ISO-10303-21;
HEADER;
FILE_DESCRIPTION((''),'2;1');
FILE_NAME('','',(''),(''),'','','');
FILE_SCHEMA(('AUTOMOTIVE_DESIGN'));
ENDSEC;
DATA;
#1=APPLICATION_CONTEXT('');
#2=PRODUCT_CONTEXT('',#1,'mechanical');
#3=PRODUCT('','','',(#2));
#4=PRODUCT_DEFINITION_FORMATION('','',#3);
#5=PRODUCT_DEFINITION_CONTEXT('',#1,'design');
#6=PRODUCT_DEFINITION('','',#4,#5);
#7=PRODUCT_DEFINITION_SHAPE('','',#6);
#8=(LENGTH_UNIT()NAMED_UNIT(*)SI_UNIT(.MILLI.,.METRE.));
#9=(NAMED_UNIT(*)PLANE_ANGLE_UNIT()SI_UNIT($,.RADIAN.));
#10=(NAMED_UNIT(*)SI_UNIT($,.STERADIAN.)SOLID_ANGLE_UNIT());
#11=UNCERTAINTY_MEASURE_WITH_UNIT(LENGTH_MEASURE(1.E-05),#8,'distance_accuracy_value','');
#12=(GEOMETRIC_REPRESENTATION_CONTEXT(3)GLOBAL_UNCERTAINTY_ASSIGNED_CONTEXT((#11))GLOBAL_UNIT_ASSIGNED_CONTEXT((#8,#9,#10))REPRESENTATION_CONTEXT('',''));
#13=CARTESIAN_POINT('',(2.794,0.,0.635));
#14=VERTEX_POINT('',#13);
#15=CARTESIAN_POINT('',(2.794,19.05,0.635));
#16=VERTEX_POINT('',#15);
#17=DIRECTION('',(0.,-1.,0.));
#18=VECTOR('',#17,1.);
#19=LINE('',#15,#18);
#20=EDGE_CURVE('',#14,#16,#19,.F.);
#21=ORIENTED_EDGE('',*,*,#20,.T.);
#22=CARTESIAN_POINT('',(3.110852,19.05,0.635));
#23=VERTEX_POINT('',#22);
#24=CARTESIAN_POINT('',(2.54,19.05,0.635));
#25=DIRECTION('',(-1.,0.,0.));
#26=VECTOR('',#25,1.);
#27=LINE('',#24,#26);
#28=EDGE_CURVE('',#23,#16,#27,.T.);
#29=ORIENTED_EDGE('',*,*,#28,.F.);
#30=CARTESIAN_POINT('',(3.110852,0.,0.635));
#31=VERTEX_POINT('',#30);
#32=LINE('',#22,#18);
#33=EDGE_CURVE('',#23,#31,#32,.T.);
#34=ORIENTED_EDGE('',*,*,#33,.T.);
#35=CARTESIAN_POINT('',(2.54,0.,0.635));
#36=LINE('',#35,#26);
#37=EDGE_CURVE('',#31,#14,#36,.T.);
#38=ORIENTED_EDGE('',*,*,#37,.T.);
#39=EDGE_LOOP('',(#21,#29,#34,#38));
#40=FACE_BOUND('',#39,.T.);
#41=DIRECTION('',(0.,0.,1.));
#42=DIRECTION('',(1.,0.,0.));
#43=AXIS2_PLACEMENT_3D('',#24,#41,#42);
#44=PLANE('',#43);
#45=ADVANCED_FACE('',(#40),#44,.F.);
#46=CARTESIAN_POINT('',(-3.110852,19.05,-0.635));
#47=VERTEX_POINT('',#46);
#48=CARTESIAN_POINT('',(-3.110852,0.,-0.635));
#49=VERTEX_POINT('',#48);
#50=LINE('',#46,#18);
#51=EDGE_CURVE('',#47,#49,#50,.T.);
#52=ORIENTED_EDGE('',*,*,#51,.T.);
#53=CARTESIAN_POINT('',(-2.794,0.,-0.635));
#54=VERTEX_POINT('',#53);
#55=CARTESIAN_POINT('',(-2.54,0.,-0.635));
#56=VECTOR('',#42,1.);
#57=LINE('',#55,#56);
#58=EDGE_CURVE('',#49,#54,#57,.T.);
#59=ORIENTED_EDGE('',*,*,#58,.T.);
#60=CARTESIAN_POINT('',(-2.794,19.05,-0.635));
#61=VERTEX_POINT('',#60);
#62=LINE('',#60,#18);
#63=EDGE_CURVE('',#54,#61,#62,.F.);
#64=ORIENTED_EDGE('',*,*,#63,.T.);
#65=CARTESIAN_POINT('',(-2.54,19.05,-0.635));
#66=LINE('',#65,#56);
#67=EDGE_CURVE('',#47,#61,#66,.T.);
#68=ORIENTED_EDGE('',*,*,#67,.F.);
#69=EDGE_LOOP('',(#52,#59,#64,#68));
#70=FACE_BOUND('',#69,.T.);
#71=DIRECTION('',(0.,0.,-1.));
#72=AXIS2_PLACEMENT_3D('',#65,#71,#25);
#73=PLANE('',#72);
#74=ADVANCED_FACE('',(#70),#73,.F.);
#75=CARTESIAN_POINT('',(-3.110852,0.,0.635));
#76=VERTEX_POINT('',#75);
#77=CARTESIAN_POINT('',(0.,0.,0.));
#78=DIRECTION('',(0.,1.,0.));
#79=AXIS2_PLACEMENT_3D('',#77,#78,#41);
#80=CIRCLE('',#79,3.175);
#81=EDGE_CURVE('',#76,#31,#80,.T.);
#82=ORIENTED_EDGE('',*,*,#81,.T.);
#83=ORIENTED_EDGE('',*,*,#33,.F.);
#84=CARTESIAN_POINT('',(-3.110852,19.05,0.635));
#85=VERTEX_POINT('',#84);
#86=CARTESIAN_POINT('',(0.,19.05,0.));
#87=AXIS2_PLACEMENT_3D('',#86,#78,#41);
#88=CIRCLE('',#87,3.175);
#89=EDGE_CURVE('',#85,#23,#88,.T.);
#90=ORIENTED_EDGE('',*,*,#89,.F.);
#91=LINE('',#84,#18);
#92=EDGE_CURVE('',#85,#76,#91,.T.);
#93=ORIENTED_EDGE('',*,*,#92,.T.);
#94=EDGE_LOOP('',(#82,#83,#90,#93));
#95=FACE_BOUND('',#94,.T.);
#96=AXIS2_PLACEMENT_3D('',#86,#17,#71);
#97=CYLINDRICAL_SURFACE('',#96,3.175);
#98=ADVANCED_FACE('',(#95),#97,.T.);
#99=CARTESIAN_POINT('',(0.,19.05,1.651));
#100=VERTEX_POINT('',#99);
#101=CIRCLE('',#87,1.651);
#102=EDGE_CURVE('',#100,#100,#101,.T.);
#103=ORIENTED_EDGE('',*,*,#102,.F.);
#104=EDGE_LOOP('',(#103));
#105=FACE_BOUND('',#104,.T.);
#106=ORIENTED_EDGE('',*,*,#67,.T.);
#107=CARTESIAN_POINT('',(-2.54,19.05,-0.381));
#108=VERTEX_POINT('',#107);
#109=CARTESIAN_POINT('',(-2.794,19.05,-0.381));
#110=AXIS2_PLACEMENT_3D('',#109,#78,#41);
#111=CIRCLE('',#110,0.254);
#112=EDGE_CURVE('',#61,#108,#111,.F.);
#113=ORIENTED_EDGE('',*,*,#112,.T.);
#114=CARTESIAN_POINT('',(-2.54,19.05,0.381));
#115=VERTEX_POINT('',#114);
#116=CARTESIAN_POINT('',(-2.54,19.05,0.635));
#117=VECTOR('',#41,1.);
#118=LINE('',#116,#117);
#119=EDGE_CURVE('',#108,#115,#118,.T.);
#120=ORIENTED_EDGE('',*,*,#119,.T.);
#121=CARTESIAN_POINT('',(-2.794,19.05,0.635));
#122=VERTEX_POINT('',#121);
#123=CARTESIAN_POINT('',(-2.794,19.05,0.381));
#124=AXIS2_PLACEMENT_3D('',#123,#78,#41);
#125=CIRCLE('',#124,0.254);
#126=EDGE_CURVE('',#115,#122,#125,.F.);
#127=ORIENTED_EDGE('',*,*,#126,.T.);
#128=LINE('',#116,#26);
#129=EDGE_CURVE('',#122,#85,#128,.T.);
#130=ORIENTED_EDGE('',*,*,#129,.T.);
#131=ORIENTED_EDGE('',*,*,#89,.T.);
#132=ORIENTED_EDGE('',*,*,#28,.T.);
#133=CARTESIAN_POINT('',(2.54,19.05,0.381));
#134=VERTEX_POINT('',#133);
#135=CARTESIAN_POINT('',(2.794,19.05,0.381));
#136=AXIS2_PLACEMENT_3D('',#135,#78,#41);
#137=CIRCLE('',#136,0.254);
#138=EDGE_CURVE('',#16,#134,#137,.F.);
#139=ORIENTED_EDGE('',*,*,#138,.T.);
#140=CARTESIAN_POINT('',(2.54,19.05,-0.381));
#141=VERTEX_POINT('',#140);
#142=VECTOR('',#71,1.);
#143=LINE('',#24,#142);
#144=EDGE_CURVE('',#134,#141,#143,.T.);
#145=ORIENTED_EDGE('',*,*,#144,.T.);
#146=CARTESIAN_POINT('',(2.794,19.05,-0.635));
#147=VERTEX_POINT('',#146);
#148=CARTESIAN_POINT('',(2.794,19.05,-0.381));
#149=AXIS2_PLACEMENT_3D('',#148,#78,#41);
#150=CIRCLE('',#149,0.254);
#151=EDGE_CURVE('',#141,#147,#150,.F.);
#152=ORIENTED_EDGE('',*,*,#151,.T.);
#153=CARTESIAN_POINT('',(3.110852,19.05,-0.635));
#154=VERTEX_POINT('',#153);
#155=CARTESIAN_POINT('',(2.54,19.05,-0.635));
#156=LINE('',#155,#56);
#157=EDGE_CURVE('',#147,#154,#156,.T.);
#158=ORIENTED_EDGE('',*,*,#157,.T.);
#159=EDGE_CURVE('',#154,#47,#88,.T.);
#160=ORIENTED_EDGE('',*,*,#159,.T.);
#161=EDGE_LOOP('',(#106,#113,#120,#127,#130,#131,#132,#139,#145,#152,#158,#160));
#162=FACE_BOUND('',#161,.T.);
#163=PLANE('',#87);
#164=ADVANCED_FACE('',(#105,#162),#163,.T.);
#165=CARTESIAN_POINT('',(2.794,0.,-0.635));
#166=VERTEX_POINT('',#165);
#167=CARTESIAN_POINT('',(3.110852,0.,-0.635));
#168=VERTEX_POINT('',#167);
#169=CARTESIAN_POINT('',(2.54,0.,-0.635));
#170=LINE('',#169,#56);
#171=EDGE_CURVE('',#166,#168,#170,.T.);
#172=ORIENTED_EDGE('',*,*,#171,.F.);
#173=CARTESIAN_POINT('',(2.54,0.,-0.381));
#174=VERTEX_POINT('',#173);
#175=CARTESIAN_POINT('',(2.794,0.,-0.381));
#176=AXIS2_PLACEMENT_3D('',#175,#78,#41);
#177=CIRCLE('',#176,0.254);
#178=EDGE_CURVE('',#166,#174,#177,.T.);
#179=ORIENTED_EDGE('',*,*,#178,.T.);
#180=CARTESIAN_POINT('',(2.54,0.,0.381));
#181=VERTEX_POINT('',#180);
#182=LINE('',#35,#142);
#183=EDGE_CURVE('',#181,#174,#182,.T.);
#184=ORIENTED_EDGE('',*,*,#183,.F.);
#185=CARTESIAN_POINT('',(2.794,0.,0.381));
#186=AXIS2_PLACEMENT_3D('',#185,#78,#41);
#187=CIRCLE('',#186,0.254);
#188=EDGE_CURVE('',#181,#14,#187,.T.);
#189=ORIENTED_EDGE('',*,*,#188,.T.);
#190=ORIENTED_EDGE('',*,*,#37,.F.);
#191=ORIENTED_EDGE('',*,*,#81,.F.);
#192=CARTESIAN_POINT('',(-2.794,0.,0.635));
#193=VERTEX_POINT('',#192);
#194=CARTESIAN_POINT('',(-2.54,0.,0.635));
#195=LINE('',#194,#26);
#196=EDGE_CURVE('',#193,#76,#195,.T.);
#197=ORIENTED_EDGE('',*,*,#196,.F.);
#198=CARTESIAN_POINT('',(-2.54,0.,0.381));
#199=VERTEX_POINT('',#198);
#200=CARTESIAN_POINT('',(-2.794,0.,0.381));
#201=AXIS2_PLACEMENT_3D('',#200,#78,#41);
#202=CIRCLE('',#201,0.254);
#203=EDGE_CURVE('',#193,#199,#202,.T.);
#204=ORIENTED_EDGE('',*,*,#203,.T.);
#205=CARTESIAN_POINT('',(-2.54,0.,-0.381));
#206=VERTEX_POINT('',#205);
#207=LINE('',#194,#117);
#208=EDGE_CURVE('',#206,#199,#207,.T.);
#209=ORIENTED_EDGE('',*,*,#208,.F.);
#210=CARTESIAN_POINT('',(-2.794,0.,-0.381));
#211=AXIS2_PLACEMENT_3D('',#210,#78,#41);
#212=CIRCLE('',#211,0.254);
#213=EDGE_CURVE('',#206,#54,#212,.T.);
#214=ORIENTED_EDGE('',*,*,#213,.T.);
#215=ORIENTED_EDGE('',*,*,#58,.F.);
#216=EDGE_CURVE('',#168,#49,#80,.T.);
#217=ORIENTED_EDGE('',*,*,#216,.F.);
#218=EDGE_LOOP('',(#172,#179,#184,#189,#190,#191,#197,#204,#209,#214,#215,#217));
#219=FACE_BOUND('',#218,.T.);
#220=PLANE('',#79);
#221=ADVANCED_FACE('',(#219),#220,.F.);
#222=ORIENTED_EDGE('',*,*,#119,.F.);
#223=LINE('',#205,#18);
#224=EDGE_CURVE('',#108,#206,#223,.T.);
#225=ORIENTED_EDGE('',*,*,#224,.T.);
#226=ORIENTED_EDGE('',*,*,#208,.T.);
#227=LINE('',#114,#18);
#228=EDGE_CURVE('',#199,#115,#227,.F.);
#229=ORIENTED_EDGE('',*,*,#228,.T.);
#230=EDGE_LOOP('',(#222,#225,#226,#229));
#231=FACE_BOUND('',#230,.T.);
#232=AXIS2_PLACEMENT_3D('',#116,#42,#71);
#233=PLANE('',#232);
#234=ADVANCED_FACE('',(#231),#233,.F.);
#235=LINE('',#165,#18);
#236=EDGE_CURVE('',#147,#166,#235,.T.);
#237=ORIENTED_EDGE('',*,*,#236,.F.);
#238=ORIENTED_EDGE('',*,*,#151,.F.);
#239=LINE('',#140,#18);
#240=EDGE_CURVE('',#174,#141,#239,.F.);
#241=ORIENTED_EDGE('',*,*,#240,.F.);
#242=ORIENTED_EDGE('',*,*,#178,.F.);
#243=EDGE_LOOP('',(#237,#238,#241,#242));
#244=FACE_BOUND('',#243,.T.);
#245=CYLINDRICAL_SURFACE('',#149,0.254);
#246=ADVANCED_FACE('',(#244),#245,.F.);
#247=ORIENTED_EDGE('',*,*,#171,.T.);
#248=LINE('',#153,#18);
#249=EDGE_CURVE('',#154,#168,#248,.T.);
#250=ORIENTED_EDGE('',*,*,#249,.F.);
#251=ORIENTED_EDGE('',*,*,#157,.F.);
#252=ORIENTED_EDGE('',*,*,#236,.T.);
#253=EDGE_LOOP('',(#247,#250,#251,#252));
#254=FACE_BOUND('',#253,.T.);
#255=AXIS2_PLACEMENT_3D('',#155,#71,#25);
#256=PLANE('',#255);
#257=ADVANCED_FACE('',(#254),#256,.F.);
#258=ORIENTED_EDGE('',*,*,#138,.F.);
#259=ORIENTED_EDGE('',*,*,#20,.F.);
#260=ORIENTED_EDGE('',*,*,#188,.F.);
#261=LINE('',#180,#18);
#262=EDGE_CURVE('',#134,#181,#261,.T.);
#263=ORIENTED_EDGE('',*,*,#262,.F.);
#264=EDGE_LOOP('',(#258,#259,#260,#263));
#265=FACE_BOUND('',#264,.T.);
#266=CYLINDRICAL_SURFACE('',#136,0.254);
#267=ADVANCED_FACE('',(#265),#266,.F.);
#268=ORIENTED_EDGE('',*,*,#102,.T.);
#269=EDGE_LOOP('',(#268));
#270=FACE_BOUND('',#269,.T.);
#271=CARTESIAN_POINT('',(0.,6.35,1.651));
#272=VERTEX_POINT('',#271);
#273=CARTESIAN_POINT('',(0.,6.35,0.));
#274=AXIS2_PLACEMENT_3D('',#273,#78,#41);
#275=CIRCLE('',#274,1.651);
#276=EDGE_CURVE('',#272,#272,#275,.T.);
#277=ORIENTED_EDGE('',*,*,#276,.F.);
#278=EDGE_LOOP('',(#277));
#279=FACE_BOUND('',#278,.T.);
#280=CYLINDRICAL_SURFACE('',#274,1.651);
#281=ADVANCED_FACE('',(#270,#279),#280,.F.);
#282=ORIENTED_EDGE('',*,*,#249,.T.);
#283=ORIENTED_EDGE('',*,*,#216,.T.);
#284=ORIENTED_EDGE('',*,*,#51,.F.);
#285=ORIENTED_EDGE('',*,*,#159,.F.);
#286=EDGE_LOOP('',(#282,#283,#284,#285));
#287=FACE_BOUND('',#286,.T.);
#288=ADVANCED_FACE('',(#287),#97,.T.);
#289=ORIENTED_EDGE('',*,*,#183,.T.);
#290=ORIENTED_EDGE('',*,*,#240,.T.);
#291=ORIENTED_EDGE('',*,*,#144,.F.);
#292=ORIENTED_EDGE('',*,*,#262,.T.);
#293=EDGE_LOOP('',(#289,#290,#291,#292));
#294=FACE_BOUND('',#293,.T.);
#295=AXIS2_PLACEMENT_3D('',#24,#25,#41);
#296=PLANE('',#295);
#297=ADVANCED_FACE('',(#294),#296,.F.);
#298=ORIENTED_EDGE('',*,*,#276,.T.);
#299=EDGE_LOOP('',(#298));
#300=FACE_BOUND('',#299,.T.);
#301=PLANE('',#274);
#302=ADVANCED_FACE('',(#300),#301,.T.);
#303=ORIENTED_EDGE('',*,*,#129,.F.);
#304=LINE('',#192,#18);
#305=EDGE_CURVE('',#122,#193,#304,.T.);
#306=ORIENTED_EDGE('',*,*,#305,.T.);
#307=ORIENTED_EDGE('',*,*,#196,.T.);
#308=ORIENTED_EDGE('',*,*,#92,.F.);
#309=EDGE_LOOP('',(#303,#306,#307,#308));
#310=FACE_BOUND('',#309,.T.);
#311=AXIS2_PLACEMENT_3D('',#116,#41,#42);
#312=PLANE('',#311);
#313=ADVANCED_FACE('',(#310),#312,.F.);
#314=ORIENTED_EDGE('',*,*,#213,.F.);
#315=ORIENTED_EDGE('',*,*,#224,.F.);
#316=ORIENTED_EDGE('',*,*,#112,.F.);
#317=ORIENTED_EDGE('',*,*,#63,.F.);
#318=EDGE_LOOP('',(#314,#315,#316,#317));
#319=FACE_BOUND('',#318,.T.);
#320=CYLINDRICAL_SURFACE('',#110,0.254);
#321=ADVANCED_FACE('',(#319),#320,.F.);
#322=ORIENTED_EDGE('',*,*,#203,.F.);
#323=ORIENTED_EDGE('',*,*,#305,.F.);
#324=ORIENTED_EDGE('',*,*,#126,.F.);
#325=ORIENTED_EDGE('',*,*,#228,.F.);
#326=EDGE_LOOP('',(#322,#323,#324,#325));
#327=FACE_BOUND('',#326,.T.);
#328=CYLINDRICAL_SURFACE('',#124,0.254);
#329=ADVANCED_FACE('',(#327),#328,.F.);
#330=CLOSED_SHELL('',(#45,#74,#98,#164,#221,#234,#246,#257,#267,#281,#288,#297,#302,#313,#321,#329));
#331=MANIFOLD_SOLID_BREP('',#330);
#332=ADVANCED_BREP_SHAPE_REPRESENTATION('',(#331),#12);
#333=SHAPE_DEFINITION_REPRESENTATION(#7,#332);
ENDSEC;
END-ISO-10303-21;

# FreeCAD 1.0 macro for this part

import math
import FreeCAD as App
import Part
import Sketcher
from FreeCAD import Vector
Q = App.Units.Quantity


def edges_at(feature, points):
    """Names of the edges that pass closest to the given points."""
    edges = feature.Shape.Edges
    near = lambda p: min(range(len(edges)), key=lambda i: edges[i].distToShape(Part.Vertex(*p))[0])
    return sorted({f"Edge{near(p) + 1}" for p in points})

doc = App.newDocument("Part")
body = doc.addObject("PartDesign::Body", "Body")

sketch1 = body.newObject("Sketcher::SketchObject", "Sketch")
sketch1.AttachmentSupport = (doc.getObject("XZ_Plane"), [""])
sketch1.MapMode = "FlatFace"
sketch1.addGeometry([
    Part.LineSegment(Vector(3.1, 0.6, 0), Vector(2.5, 0.6, 0)),
    Part.LineSegment(Vector(2.5, 0.6, 0), Vector(2.5, -0.6, 0)),
    Part.LineSegment(Vector(2.5, -0.6, 0), Vector(3.1, -0.6, 0)),
    Part.ArcOfCircle(Part.Circle(Vector(0, 0, 0), Vector(0, 0, 1), 3.2), math.radians(-168), math.radians(-12)),
    Part.LineSegment(Vector(-3.1, -0.6, 0), Vector(-2.5, -0.6, 0)),
    Part.LineSegment(Vector(-2.5, -0.6, 0), Vector(-2.5, 0.6, 0)),
    Part.LineSegment(Vector(-2.5, 0.6, 0), Vector(-3.1, 0.6, 0)),
    Part.ArcOfCircle(Part.Circle(Vector(0, 0, 0), Vector(0, 0, 1), 3.2), math.radians(12), math.radians(168)),
], False)
sketch1.addConstraint([
    Sketcher.Constraint("Coincident", 0, 2, 1, 1),
    Sketcher.Constraint("Coincident", 1, 2, 2, 1),
    Sketcher.Constraint("Coincident", 2, 2, 3, 2),
    Sketcher.Constraint("Coincident", 3, 1, 4, 1),
    Sketcher.Constraint("Coincident", 4, 2, 5, 1),
    Sketcher.Constraint("Coincident", 5, 2, 6, 1),
    Sketcher.Constraint("Coincident", 6, 2, 7, 2),
    Sketcher.Constraint("Coincident", 7, 1, 0, 1),
    Sketcher.Constraint("Horizontal", 0),
    Sketcher.Constraint("Vertical", 1),
    Sketcher.Constraint("Horizontal", 2),
    Sketcher.Constraint("Horizontal", 4),
    Sketcher.Constraint("Vertical", 5),
    Sketcher.Constraint("Horizontal", 6),
    Sketcher.Constraint("Coincident", 3, 3, -1, 1),
    Sketcher.Constraint("Coincident", 7, 3, -1, 1),
    Sketcher.Constraint("Equal", 3, 7),
    Sketcher.Constraint("Symmetric", 0, 2, 4, 2, -1, 1),
    Sketcher.Constraint("Horizontal", 2, 2, 3, 1),
    Sketcher.Constraint("Horizontal", 0, 2, 5, 2),
    Sketcher.Constraint("Radius", 3, Q("0.125 in")),
    Sketcher.Constraint("DistanceY", 1, 2, 1, 1, Q("0.05 in")),
    Sketcher.Constraint("DistanceX", -1, 1, 0, 2, Q("0.1 in")),
])
pad1 = body.newObject("PartDesign::Pad", "Pad")
pad1.Profile = sketch1
pad1.Length = Q("0.75 in")
pad1.Reversed = True

sketch2 = body.newObject("Sketcher::SketchObject", "Sketch001")
sketch2.AttachmentSupport = (doc.getObject("XZ_Plane"), [""])
sketch2.MapMode = "FlatFace"
sketch2.AttachmentOffset = App.Placement(Vector(0, 0, -0.75 * 25.4), App.Rotation())
sketch2.addGeometry(Part.Circle(Vector(0, 0, 0), Vector(0, 0, 1), 1.7), False)
sketch2.addConstraint([
    Sketcher.Constraint("Coincident", 0, 3, -1, 1),
    Sketcher.Constraint("Diameter", 0, Q("0.13 in")),
])
pocket1 = body.newObject("PartDesign::Pocket", "Pocket")
pocket1.Profile = sketch2
pocket1.Length = Q("0.5 in")
pocket1.Reversed = True
doc.recompute()

fillet = body.newObject("PartDesign::Fillet", "Fillet")
fillet.Base = (pocket1, edges_at(pocket1, [
    (2.54, 9.525, 0.635),
    (-2.54, 9.525, 0.635),
    (-2.54, 9.525, -0.635),
    (2.54, 9.525, -0.635),
]))
fillet.Radius = Q("0.01 in")

doc.recompute()
